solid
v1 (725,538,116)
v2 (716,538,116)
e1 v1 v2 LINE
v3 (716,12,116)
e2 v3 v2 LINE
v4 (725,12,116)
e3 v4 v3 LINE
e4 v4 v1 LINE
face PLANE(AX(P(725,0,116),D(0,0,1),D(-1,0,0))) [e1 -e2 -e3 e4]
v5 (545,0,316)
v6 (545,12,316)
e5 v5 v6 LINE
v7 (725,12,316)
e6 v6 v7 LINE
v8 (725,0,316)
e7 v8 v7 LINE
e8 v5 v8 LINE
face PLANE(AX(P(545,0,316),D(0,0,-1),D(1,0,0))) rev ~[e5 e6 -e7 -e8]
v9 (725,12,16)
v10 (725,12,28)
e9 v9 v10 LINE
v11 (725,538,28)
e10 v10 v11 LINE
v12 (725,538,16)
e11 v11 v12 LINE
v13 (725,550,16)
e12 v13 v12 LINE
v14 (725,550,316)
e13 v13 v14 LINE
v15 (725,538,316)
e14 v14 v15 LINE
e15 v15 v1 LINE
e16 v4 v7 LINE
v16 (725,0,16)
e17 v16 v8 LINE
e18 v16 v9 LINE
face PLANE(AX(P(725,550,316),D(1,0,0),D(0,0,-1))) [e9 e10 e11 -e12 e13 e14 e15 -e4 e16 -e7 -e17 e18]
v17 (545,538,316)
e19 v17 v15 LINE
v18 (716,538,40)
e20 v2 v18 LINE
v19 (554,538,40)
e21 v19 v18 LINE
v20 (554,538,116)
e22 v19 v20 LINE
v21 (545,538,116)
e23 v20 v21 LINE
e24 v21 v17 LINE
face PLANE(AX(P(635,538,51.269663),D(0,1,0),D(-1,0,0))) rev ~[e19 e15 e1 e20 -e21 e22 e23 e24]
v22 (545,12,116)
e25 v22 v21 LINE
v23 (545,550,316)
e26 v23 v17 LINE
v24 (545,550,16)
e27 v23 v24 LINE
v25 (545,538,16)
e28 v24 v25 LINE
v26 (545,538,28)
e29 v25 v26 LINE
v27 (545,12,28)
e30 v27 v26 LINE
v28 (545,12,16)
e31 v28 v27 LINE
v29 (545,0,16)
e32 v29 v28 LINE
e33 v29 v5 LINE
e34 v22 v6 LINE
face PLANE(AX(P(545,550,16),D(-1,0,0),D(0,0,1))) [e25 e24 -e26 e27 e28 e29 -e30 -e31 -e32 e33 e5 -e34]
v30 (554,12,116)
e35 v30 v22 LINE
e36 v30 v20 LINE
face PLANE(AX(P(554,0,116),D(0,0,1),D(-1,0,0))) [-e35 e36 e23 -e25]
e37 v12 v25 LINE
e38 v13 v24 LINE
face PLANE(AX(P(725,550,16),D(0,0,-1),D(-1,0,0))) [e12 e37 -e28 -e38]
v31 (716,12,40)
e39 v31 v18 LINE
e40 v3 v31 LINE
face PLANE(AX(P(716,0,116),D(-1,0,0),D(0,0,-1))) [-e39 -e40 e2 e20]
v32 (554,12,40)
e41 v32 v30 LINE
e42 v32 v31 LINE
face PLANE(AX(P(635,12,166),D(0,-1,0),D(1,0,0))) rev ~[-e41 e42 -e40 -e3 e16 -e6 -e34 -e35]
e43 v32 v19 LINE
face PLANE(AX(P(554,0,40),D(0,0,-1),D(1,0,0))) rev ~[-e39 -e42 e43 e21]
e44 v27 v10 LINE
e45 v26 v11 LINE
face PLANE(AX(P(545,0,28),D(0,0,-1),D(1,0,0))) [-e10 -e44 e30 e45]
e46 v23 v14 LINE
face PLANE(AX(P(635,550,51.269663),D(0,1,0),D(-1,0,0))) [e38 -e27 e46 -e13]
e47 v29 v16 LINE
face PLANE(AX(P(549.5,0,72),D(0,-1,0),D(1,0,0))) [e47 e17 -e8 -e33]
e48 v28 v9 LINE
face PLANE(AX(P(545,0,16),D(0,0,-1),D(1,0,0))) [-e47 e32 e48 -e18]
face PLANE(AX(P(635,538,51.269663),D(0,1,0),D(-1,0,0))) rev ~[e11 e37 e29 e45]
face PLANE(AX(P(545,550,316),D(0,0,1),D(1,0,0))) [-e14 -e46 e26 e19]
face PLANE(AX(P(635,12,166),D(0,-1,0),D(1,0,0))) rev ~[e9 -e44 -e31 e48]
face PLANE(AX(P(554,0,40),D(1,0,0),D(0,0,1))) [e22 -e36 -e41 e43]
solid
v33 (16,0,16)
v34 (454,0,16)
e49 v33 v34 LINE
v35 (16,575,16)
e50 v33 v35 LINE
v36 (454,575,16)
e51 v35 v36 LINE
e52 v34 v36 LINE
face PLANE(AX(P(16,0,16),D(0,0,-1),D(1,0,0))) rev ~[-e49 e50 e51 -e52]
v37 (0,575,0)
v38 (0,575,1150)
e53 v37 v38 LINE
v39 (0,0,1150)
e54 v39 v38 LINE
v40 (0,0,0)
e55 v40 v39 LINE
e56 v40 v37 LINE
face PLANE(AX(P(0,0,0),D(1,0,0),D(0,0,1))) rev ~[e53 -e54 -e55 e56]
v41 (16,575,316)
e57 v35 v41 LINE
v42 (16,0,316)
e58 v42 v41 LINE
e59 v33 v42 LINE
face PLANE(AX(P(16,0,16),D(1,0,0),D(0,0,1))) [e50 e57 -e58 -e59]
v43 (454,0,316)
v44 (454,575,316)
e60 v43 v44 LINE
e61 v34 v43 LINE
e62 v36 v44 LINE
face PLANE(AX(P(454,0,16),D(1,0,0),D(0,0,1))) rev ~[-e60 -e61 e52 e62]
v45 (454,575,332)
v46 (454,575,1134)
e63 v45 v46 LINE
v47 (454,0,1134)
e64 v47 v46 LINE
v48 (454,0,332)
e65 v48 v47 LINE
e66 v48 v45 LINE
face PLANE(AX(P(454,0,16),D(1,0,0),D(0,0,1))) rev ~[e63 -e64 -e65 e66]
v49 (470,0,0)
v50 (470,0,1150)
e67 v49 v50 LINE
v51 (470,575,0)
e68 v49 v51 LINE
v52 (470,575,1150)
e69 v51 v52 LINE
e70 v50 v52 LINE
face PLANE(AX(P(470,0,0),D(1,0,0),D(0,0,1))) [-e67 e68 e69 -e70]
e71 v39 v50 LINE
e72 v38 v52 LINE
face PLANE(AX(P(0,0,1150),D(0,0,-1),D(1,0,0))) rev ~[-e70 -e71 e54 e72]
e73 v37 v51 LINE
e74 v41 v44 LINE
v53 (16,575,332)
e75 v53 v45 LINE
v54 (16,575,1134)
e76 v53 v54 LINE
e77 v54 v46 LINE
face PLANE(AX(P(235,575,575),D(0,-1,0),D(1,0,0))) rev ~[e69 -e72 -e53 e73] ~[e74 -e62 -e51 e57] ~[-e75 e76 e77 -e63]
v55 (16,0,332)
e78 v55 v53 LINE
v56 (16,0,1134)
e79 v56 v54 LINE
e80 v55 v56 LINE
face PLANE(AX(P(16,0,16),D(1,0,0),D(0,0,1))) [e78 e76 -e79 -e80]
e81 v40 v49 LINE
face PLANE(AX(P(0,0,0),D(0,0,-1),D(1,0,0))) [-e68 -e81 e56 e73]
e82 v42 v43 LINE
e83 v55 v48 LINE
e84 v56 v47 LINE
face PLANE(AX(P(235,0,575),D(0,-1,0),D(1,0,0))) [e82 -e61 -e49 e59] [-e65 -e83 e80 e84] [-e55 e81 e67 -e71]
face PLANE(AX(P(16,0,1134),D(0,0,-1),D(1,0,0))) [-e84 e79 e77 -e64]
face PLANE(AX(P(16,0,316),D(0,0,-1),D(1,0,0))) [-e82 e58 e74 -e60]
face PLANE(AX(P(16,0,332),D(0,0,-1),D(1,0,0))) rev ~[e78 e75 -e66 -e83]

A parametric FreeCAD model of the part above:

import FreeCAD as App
import Part
import Sketcher

V = App.Vector

doc = App.newDocument("Part")
body = doc.addObject("PartDesign::Body", "Body")

# Sketch on XZ plane
sketch1 = body.newObject("Sketcher::SketchObject", "Sketch")
sketch1.AttachmentSupport = (doc.getObject("XZ_Plane"), [""])
sketch1.MapMode = "FlatFace"
sketch1.addGeometry([
    Part.LineSegment(V(0, 1150, 0), V(0, 0, 0)),
    Part.LineSegment(V(0, 0, 0), V(470, 0, 0)),
    Part.LineSegment(V(470, 0, 0), V(470, 1150, 0)),
    Part.LineSegment(V(470, 1150, 0), V(0, 1150, 0)),
], False)
sketch1.addConstraint([
    Sketcher.Constraint("Coincident", 0, 2, 1, 1),
    Sketcher.Constraint("Coincident", 1, 2, 2, 1),
    Sketcher.Constraint("Coincident", 2, 2, 3, 1),
    Sketcher.Constraint("Coincident", 3, 2, 0, 1),
    Sketcher.Constraint("Vertical", 0),
    Sketcher.Constraint("Horizontal", 1),
    Sketcher.Constraint("Vertical", 2),
    Sketcher.Constraint("Horizontal", 3),
    Sketcher.Constraint("Coincident", 0, 2, -1, 1),
    Sketcher.Constraint("DistanceX", 1, 1, 1, 2, 470.0),
    Sketcher.Constraint("DistanceY", 0, 2, 0, 1, 1150.0),
])
pad1 = body.newObject("PartDesign::Pad", "Pad")
pad1.Profile = sketch1
pad1.Length = 575
pad1.Reversed = True

# Sketch on XZ plane
sketch2 = body.newObject("Sketcher::SketchObject", "Sketch001")
sketch2.AttachmentSupport = (doc.getObject("XZ_Plane"), [""])
sketch2.MapMode = "FlatFace"
sketch2.addGeometry([
    Part.LineSegment(V(16, 1134, 0), V(16, 16, 0)),
    Part.LineSegment(V(16, 16, 0), V(454, 16, 0)),
    Part.LineSegment(V(454, 16, 0), V(454, 1134, 0)),
    Part.LineSegment(V(454, 1134, 0), V(16, 1134, 0)),
], False)
sketch2.addConstraint([
    Sketcher.Constraint("Coincident", 0, 2, 1, 1),
    Sketcher.Constraint("Coincident", 1, 2, 2, 1),
    Sketcher.Constraint("Coincident", 2, 2, 3, 1),
    Sketcher.Constraint("Coincident", 3, 2, 0, 1),
    Sketcher.Constraint("Vertical", 0),
    Sketcher.Constraint("Horizontal", 1),
    Sketcher.Constraint("Vertical", 2),
    Sketcher.Constraint("Horizontal", 3),
    Sketcher.Constraint("DistanceX", 1, 1, 1, 2, 438.0),
    Sketcher.Constraint("DistanceY", 0, 2, 0, 1, 1118.0),
    Sketcher.Constraint("DistanceX", -1, 1, 0, 2, 16.0),
    Sketcher.Constraint("DistanceY", -1, 1, 0, 2, 16.0),
])
pocket1 = body.newObject("PartDesign::Pocket", "Pocket")
pocket1.Profile = sketch2
pocket1.Length = 575

# Sketch on XZ plane
sketch3 = body.newObject("Sketcher::SketchObject", "Sketch002")
sketch3.AttachmentSupport = (doc.getObject("XZ_Plane"), [""])
sketch3.MapMode = "FlatFace"
sketch3.addGeometry([
    Part.LineSegment(V(16, 332, 0), V(16, 316, 0)),
    Part.LineSegment(V(16, 316, 0), V(454, 316, 0)),
    Part.LineSegment(V(454, 316, 0), V(454, 332, 0)),
    Part.LineSegment(V(454, 332, 0), V(16, 332, 0)),
], False)
sketch3.addConstraint([
    Sketcher.Constraint("Coincident", 0, 2, 1, 1),
    Sketcher.Constraint("Coincident", 1, 2, 2, 1),
    Sketcher.Constraint("Coincident", 2, 2, 3, 1),
    Sketcher.Constraint("Coincident", 3, 2, 0, 1),
    Sketcher.Constraint("Vertical", 0),
    Sketcher.Constraint("Horizontal", 1),
    Sketcher.Constraint("Vertical", 2),
    Sketcher.Constraint("Horizontal", 3),
    Sketcher.Constraint("DistanceX", 1, 1, 1, 2, 438.0),
    Sketcher.Constraint("DistanceY", 0, 2, 0, 1, 16.0),
    Sketcher.Constraint("DistanceX", -1, 1, 0, 2, 16.0),
    Sketcher.Constraint("DistanceY", -1, 1, 0, 2, 316.0),
])
pad2 = body.newObject("PartDesign::Pad", "Pad001")
pad2.Profile = sketch3
pad2.Length = 575
pad2.Reversed = True
body2 = doc.addObject("PartDesign::Body", "Body001")

# Sketch on XZ plane
sketch4 = body2.newObject("Sketcher::SketchObject", "Sketch003")
sketch4.AttachmentSupport = (doc.getObject("XZ_Plane001"), [""])
sketch4.MapMode = "FlatFace"
sketch4.addGeometry([
    Part.LineSegment(V(545, 316, 0), V(545, 16, 0)),
    Part.LineSegment(V(545, 16, 0), V(725, 16, 0)),
    Part.LineSegment(V(725, 16, 0), V(725, 316, 0)),
    Part.LineSegment(V(725, 316, 0), V(545, 316, 0)),
], False)
sketch4.addConstraint([
    Sketcher.Constraint("Coincident", 0, 2, 1, 1),
    Sketcher.Constraint("Coincident", 1, 2, 2, 1),
    Sketcher.Constraint("Coincident", 2, 2, 3, 1),
    Sketcher.Constraint("Coincident", 3, 2, 0, 1),
    Sketcher.Constraint("Vertical", 0),
    Sketcher.Constraint("Horizontal", 1),
    Sketcher.Constraint("Vertical", 2),
    Sketcher.Constraint("Horizontal", 3),
    Sketcher.Constraint("DistanceX", 1, 1, 1, 2, 180.0),
    Sketcher.Constraint("DistanceY", 0, 2, 0, 1, 300.0),
    Sketcher.Constraint("DistanceX", -1, 1, 0, 2, 545.0),
    Sketcher.Constraint("DistanceY", -1, 1, 0, 2, 16.0),
])
pad3 = body2.newObject("PartDesign::Pad", "Pad002")
pad3.Profile = sketch4
pad3.Length = 12
pad3.Reversed = True

# Sketch on XZ plane
sketch5 = body2.newObject("Sketcher::SketchObject", "Sketch004")
sketch5.AttachmentSupport = (doc.getObject("XZ_Plane001"), [""])
sketch5.MapMode = "FlatFace"
sketch5.addGeometry([
    Part.LineSegment(V(554, 116, 0), V(545, 116, 0)),  # 0
    Part.LineSegment(V(545, 116, 0), V(545, 28, 0)),  # 1
    Part.LineSegment(V(545, 28, 0), V(725, 28, 0)),  # 2
    Part.LineSegment(V(725, 28, 0), V(725, 116, 0)),  # 3
    Part.LineSegment(V(725, 116, 0), V(716, 116, 0)),  # 4
    Part.LineSegment(V(716, 116, 0), V(716, 40, 0)),  # 5
    Part.LineSegment(V(716, 40, 0), V(554, 40, 0)),  # 6
    Part.LineSegment(V(554, 40, 0), V(554, 116, 0)),  # 7
], False)
sketch5.addConstraint([
    Sketcher.Constraint("Coincident", 0, 2, 1, 1),
    Sketcher.Constraint("Coincident", 1, 2, 2, 1),
    Sketcher.Constraint("Coincident", 2, 2, 3, 1),
    Sketcher.Constraint("Coincident", 3, 2, 4, 1),
    Sketcher.Constraint("Coincident", 4, 2, 5, 1),
    Sketcher.Constraint("Coincident", 5, 2, 6, 1),
    Sketcher.Constraint("Coincident", 6, 2, 7, 1),
    Sketcher.Constraint("Coincident", 7, 2, 0, 1),
    Sketcher.Constraint("Horizontal", 0),
    Sketcher.Constraint("Vertical", 1),
    Sketcher.Constraint("Horizontal", 2),
    Sketcher.Constraint("Vertical", 3),
    Sketcher.Constraint("Horizontal", 4),
    Sketcher.Constraint("Vertical", 5),
    Sketcher.Constraint("Horizontal", 6),
    Sketcher.Constraint("Vertical", 7),
    Sketcher.Constraint("Horizontal", 0, 2, 3, 2),
    Sketcher.Constraint("Equal", 0, 4),
    Sketcher.Constraint("DistanceX", 0, 2, 0, 1, 9.0),
    Sketcher.Constraint("DistanceX", 2, 1, 2, 2, 180.0),
    Sketcher.Constraint("DistanceY", 1, 2, 1, 1, 88.0),
    Sketcher.Constraint("DistanceY", 5, 2, 5, 1, 76.0),
    Sketcher.Constraint("DistanceX", -1, 1, 0, 2, 545.0),
    Sketcher.Constraint("DistanceY", -1, 1, 0, 2, 116.0),
])
pad4 = body2.newObject("PartDesign::Pad", "Pad003")
pad4.Profile = sketch5
pad4.Length = 550
pad4.Reversed = True

# Sketch on XZ plane
sketch6 = body2.newObject("Sketcher::SketchObject", "Sketch005")
sketch6.AttachmentSupport = (doc.getObject("XZ_Plane001"), [""])
sketch6.MapMode = "FlatFace"
sketch6.AttachmentOffset = App.Placement(V(0, 0, -550), App.Rotation())
sketch6.addGeometry([
    Part.LineSegment(V(725, 16, 0), V(545, 16, 0)),
    Part.LineSegment(V(545, 16, 0), V(545, 316, 0)),
    Part.LineSegment(V(545, 316, 0), V(725, 316, 0)),
    Part.LineSegment(V(725, 316, 0), V(725, 16, 0)),
], False)
sketch6.addConstraint([
    Sketcher.Constraint("Coincident", 0, 2, 1, 1),
    Sketcher.Constraint("Coincident", 1, 2, 2, 1),
    Sketcher.Constraint("Coincident", 2, 2, 3, 1),
    Sketcher.Constraint("Coincident", 3, 2, 0, 1),
    Sketcher.Constraint("Horizontal", 0),
    Sketcher.Constraint("Vertical", 1),
    Sketcher.Constraint("Horizontal", 2),
    Sketcher.Constraint("Vertical", 3),
    Sketcher.Constraint("DistanceX", 0, 2, 0, 1, 180.0),
    Sketcher.Constraint("DistanceY", 1, 1, 1, 2, 300.0),
    Sketcher.Constraint("DistanceX", -1, 1, 0, 2, 545.0),
    Sketcher.Constraint("DistanceY", -1, 1, 0, 2, 16.0),
])
pad5 = body2.newObject("PartDesign::Pad", "Pad004")
pad5.Profile = sketch6
pad5.Length = 12

doc.recompute()
